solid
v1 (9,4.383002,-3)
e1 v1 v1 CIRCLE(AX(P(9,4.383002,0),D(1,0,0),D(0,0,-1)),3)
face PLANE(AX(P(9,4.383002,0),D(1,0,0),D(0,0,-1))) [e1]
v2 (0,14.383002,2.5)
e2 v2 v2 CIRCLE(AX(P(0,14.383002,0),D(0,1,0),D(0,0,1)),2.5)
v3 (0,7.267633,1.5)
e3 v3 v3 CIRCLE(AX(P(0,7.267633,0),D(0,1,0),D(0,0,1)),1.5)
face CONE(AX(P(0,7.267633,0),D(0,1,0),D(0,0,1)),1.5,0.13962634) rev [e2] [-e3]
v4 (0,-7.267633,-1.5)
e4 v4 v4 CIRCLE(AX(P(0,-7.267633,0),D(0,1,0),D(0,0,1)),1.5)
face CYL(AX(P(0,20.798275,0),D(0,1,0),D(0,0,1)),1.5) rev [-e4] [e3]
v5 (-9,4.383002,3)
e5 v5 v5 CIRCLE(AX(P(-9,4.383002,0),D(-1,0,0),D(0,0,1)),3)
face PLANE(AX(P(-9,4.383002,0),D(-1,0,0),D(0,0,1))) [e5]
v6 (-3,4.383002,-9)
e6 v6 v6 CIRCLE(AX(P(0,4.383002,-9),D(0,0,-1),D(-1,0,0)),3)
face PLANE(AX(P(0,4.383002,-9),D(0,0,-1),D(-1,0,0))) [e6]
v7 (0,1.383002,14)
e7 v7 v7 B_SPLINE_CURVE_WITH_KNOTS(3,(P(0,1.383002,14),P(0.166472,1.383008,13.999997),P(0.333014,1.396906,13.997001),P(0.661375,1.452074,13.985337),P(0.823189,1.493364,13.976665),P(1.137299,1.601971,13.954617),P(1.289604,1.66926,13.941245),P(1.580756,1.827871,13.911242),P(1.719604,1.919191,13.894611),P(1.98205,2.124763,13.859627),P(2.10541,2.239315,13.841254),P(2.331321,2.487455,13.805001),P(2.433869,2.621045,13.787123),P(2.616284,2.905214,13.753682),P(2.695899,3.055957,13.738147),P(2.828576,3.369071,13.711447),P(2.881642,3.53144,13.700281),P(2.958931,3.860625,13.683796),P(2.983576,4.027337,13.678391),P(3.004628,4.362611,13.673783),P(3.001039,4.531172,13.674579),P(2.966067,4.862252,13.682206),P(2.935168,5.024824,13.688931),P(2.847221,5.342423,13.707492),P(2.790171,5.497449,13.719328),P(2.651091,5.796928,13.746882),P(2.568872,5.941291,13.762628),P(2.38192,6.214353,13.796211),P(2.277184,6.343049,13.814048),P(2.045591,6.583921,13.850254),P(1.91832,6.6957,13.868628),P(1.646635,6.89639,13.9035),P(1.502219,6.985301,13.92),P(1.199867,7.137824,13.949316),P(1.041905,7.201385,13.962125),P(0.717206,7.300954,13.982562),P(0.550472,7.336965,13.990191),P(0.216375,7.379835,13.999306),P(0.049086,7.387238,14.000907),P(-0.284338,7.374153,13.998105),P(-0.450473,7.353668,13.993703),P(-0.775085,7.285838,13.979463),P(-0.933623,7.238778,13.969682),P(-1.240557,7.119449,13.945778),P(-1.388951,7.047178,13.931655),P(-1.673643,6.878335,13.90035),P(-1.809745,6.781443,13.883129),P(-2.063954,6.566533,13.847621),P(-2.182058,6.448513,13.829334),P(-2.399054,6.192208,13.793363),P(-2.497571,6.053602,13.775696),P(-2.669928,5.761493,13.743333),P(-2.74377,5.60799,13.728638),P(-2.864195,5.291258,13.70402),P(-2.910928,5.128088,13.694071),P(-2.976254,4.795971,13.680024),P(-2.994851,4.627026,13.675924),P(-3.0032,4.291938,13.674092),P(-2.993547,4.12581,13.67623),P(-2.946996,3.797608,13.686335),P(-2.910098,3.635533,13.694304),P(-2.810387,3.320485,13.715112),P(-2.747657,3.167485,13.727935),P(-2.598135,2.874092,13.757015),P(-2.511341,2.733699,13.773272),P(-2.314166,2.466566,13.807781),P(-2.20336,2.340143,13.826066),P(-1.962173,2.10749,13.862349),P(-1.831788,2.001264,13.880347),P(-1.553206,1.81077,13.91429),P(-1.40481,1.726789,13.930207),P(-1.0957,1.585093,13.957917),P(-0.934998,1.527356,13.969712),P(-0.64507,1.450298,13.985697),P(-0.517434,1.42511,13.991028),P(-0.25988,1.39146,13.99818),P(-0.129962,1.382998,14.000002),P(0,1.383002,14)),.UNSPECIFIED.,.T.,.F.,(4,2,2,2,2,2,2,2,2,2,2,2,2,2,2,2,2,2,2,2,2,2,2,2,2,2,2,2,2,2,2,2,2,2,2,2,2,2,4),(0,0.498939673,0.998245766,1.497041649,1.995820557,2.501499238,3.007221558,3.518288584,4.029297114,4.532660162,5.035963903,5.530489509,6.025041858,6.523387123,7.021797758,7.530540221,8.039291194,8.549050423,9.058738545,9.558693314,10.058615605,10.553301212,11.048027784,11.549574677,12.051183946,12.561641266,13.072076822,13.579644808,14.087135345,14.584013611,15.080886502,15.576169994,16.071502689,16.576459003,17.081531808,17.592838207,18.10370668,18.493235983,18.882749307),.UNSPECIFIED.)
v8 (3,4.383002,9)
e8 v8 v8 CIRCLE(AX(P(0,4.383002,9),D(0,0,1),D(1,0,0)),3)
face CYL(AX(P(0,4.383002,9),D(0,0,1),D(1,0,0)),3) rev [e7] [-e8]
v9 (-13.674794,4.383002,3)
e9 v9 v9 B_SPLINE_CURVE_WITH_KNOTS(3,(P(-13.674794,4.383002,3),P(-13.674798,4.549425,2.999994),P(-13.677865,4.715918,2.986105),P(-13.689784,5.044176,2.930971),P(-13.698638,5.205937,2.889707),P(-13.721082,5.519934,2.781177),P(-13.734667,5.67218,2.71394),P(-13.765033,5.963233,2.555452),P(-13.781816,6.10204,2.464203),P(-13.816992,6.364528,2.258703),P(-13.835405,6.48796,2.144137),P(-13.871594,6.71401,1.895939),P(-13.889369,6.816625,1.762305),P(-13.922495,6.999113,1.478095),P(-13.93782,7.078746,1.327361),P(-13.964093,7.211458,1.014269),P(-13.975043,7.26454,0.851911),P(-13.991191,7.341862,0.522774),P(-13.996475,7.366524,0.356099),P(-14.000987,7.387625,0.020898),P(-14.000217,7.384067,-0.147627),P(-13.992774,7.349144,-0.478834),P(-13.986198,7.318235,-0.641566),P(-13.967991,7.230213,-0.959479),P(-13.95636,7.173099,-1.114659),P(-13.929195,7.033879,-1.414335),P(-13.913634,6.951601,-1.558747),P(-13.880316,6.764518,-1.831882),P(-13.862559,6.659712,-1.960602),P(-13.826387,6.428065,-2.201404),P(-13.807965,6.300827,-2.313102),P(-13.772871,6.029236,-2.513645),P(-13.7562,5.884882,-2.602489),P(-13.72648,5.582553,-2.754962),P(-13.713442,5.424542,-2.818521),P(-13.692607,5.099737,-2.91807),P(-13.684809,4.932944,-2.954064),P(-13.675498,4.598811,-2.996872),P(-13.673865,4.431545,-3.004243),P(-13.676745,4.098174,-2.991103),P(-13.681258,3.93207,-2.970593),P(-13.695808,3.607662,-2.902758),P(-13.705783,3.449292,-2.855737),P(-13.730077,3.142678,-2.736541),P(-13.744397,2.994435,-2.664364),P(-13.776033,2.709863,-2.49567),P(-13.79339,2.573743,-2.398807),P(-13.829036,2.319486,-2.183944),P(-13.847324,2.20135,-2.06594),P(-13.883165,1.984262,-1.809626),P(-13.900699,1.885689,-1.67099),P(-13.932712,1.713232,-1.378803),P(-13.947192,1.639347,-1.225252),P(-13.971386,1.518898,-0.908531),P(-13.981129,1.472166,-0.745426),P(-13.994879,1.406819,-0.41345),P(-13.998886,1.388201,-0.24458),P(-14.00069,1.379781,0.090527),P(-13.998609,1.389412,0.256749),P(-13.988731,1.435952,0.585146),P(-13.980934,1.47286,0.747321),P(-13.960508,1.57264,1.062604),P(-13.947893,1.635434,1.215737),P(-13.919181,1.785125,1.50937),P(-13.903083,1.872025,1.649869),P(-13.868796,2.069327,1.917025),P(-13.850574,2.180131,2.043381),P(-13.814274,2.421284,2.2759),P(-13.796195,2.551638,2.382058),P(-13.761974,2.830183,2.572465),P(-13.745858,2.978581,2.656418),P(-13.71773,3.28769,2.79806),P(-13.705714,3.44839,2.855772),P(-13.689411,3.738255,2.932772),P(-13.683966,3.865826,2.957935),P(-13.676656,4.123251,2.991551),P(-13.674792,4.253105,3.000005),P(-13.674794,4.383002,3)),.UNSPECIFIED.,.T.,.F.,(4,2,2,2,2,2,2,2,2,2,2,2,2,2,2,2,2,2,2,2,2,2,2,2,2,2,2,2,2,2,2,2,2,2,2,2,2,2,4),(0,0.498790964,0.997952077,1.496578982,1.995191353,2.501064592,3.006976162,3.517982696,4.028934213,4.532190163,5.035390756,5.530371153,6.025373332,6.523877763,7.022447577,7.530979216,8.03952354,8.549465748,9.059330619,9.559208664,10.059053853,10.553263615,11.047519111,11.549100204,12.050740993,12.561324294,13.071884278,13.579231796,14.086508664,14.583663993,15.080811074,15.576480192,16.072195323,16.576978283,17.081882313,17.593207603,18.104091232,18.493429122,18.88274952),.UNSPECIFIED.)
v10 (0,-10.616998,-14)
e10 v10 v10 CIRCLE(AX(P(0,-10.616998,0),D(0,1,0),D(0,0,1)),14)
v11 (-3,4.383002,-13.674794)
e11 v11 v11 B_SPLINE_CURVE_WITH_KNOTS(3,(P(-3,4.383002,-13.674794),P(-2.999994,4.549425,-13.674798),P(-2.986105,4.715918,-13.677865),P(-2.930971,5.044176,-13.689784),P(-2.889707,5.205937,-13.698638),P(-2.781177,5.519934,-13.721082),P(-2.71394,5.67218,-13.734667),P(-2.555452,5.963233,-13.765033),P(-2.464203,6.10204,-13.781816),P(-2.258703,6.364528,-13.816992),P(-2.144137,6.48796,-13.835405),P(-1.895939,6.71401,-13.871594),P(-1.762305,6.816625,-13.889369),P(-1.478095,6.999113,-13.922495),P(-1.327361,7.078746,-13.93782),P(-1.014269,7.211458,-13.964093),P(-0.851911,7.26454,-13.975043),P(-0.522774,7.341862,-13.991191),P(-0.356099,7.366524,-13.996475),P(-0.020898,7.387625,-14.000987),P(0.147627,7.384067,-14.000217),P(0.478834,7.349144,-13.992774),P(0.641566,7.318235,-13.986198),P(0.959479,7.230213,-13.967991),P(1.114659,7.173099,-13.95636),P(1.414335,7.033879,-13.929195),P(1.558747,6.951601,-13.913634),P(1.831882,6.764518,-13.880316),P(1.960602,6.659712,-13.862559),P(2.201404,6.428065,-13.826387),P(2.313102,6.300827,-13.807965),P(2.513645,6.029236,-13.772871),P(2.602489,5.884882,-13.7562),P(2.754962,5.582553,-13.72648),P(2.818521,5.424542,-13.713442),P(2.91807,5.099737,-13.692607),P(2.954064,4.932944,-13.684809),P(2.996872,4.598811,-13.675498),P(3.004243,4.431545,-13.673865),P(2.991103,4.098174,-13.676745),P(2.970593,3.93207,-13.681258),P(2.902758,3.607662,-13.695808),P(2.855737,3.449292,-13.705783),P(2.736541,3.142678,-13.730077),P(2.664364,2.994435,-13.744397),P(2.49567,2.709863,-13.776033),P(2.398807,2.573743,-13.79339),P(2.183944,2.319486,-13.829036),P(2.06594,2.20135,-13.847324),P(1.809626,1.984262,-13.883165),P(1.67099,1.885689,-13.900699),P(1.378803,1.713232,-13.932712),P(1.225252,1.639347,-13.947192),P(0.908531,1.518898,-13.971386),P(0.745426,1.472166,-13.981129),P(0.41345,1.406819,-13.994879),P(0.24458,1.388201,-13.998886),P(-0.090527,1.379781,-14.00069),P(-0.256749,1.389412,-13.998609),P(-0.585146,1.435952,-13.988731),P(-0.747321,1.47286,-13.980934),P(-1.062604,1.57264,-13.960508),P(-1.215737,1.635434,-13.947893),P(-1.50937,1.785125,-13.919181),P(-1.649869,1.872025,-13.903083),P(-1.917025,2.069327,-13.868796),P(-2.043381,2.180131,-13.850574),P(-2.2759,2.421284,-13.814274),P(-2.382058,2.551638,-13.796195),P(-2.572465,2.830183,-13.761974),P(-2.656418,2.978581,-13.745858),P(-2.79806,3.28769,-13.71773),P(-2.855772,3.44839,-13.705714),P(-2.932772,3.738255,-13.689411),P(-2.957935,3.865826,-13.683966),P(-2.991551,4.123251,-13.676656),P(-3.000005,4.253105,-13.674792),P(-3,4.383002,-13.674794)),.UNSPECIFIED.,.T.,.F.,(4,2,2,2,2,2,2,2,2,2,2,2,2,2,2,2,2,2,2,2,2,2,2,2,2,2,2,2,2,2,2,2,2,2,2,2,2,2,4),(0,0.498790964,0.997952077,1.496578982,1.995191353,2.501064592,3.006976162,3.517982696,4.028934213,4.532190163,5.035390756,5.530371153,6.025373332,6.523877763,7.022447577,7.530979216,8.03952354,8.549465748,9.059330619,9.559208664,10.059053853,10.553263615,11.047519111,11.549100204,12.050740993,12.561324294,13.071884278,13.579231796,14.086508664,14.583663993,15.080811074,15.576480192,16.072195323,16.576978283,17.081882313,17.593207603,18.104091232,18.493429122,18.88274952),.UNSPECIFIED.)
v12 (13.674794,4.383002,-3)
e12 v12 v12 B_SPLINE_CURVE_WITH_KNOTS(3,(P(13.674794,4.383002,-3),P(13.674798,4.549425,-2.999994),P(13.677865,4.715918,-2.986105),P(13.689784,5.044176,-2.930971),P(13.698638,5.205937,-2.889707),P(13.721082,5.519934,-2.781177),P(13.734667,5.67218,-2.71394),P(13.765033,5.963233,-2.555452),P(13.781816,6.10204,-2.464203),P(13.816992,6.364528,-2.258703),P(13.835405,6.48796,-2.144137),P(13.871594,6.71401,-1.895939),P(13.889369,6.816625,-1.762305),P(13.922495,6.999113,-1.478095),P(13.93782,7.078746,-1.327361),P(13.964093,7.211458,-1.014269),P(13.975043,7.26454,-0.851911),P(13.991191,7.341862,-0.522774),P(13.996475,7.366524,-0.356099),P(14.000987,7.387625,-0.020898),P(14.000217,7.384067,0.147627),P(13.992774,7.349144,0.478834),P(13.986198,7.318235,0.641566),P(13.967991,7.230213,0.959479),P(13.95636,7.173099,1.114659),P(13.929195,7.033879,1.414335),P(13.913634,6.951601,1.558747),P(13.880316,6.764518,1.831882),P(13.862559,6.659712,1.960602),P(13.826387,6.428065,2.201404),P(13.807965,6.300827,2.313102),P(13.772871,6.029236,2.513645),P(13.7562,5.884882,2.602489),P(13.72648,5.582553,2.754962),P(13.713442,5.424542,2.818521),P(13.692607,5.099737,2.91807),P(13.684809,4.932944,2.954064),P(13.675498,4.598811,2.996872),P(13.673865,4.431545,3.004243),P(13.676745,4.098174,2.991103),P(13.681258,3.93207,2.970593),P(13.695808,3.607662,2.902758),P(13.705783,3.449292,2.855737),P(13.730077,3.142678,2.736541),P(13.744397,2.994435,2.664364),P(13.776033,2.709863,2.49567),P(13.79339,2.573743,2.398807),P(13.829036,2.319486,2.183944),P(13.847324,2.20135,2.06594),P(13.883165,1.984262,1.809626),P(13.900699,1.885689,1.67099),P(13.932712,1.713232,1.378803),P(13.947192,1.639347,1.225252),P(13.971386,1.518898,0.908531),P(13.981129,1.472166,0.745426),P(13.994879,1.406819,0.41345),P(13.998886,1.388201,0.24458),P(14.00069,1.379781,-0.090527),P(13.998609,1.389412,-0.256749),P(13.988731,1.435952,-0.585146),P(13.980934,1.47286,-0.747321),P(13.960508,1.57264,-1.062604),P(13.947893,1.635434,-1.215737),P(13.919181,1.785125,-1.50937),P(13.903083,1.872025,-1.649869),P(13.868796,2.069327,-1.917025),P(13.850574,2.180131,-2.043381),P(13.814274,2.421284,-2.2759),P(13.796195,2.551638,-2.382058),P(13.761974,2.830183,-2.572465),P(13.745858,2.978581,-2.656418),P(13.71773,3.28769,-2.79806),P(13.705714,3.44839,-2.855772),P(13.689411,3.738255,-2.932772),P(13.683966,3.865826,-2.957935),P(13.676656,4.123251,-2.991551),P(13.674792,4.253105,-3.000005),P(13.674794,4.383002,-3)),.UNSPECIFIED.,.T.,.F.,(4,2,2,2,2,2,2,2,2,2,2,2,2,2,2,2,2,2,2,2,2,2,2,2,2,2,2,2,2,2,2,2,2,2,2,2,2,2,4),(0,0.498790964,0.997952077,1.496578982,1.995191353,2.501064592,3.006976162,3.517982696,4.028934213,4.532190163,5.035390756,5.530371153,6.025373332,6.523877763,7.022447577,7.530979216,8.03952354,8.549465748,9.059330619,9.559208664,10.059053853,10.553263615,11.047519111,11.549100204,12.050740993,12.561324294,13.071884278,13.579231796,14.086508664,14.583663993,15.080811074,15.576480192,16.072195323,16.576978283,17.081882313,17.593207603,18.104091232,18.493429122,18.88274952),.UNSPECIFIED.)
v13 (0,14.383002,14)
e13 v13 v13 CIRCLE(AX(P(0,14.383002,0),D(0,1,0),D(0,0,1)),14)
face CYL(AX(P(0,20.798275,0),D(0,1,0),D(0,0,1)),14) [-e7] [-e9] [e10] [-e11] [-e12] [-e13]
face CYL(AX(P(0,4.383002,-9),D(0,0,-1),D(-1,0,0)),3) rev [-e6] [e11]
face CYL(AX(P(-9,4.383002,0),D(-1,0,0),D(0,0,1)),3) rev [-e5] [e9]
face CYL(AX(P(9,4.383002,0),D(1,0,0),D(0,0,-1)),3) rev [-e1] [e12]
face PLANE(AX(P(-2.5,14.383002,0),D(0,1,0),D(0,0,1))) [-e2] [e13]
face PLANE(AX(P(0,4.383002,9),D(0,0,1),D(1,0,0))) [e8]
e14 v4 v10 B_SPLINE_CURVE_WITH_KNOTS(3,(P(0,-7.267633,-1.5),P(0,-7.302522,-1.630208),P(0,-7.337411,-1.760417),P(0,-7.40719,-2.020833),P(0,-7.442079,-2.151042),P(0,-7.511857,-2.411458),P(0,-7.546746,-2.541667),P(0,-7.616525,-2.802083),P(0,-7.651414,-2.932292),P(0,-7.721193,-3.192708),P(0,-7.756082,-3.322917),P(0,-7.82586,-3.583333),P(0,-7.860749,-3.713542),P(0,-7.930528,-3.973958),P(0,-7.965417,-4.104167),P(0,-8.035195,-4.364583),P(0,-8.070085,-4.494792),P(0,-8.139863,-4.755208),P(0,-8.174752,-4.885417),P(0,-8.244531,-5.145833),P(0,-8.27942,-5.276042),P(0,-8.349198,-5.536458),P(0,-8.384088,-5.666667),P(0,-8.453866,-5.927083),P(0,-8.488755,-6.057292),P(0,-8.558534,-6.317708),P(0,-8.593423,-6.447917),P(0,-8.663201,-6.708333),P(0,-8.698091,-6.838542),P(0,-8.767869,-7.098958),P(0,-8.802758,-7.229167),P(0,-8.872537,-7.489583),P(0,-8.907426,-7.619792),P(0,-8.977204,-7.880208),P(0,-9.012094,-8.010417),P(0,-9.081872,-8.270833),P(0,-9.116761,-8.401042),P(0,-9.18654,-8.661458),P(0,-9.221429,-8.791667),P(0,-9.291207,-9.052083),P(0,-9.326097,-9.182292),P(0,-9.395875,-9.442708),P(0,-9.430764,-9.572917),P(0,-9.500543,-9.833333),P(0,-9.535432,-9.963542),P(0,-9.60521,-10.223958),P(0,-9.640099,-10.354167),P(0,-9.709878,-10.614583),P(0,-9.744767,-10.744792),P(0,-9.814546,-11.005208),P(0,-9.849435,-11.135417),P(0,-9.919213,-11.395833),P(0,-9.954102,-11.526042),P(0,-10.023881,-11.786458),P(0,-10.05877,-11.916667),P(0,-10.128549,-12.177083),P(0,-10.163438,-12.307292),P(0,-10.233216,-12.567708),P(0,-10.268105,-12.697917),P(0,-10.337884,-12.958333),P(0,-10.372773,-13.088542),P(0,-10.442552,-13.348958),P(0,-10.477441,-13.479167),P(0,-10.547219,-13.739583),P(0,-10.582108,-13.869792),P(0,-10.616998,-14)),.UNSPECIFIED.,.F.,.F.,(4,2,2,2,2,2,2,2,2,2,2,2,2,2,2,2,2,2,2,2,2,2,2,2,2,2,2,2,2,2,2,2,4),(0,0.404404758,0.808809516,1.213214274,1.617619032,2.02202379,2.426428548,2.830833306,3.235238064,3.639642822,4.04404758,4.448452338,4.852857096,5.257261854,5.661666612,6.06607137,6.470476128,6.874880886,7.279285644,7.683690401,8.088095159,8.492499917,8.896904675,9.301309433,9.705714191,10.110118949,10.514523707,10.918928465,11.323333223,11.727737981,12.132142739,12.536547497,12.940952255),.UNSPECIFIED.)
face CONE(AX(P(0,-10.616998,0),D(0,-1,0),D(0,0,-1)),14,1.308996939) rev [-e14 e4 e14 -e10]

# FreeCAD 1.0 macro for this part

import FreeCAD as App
import Part
import Sketcher
from FreeCAD import Vector
Q = App.Units.Quantity

doc = App.newDocument("Part")
params = doc.addObject("Spreadsheet::Sheet", "Params")
for row, (alias, value) in enumerate([
    ("sketch1_height", "25 mm"),
    ("sketch1_width", "11.5 mm"),
    ("revolution_angle", "360 deg"),
    ("sketch2_diameter", "6 mm"),
    ("pocket1_length", "5 mm"),
], start=1):
    params.set(f"A{row}", alias)
    params.set(f"B{row}", "=" + value)
    params.setAlias(f"B{row}", alias)

body = doc.addObject("PartDesign::Body", "Body")

sketch1 = doc.addObject("Sketcher::SketchObject", "Sketch")
body.addObject(sketch1)
sketch1.AttachmentSupport = (doc.XY_Plane, [""])
sketch1.MapMode = "FlatFace"
sketch1.addGeometry(Part.LineSegment(Vector(-2, -7, 0), Vector(-2, 7, 0)), False)
sketch1.addGeometry(Part.LineSegment(Vector(-2, 7, 0), Vector(-2, 14, 0)), False)
sketch1.addGeometry(Part.LineSegment(Vector(-2, 14, 0), Vector(-14, 14, 0)), False)
sketch1.addGeometry(Part.LineSegment(Vector(-14, 14, 0), Vector(-14, -11, 0)), False)
sketch1.addGeometry(Part.LineSegment(Vector(-14, -11, 0), Vector(-2, -7, 0)), False)
sketch1.addConstraint(Sketcher.Constraint("Coincident", 0, 2, 1, 1))
sketch1.addConstraint(Sketcher.Constraint("Coincident", 1, 2, 2, 1))
sketch1.addConstraint(Sketcher.Constraint("Coincident", 2, 2, 3, 1))
sketch1.addConstraint(Sketcher.Constraint("Coincident", 3, 2, 4, 1))
sketch1.addConstraint(Sketcher.Constraint("Coincident", 4, 2, 0, 1))
sketch1.addConstraint(Sketcher.Constraint("Vertical", 0))
sketch1.addConstraint(Sketcher.Constraint("Horizontal", 2))
sketch1.addConstraint(Sketcher.Constraint("Vertical", 3))
sketch1.addConstraint(Sketcher.Constraint("DistanceY", 3, 2, 3, 1, Q("25 mm")))
sketch1.addConstraint(Sketcher.Constraint("Angle", 1, Q("98 deg")))
sketch1.addConstraint(Sketcher.Constraint("Angle", 4, Q("15 deg")))
sketch1.addConstraint(Sketcher.Constraint("DistanceX", 2, 2, 2, 1, Q("11.5 mm")))
sketch1.addConstraint(Sketcher.Constraint("DistanceX", 2, 2, -1, 1, Q("14 mm")))
sketch1.addConstraint(Sketcher.Constraint("DistanceX", 1, 2, 0, 2, Q("1 mm")))
sketch1.addConstraint(Sketcher.Constraint("DistanceY", -1, 1, 0, 2, Q("7.267633 mm")))
sketch1.setExpression("Constraints[8]", "Params.sketch1_height")
sketch1.setExpression("Constraints[11]", "Params.sketch1_width")
revolution = doc.addObject("PartDesign::Revolution", "Revolution")
body.addObject(revolution)
revolution.Profile = sketch1
revolution.ReferenceAxis = (sketch1, ["V_Axis"])
revolution.setExpression("Angle", "Params.revolution_angle")

sketch2 = doc.addObject("Sketcher::SketchObject", "Sketch001")
body.addObject(sketch2)
sketch2.AttachmentSupport = (doc.YZ_Plane, [""])
sketch2.MapMode = "FlatFace"
sketch2.AttachmentOffset = App.Placement(Vector(0, 0, 14), App.Rotation())
sketch2.addGeometry(Part.Circle(Vector(4.4, 0, 0), Vector(0, 0, 1), 3), False)
sketch2.addConstraint(Sketcher.Constraint("PointOnObject", 0, 3, -1))
sketch2.addConstraint(Sketcher.Constraint("Diameter", 0, Q("6 mm")))
sketch2.addConstraint(Sketcher.Constraint("DistanceX", -1, 1, 0, 3, Q("4.383002 mm")))
sketch2.setExpression("Constraints[1]", "Params.sketch2_diameter")
pocket1 = doc.addObject("PartDesign::Pocket", "Pocket")
body.addObject(pocket1)
pocket1.Profile = sketch2
pocket1.setExpression("Length", "Params.pocket1_length")
doc.recompute()

polarpattern = doc.addObject("PartDesign::PolarPattern", "PolarPattern")
body.addObject(polarpattern)
polarpattern.Originals = [pocket1]
polarpattern.Axis = (doc.Y_Axis, [""])
polarpattern.Angle = 360
polarpattern.Occurrences = 4
body.Tip = polarpattern

doc.recompute()
